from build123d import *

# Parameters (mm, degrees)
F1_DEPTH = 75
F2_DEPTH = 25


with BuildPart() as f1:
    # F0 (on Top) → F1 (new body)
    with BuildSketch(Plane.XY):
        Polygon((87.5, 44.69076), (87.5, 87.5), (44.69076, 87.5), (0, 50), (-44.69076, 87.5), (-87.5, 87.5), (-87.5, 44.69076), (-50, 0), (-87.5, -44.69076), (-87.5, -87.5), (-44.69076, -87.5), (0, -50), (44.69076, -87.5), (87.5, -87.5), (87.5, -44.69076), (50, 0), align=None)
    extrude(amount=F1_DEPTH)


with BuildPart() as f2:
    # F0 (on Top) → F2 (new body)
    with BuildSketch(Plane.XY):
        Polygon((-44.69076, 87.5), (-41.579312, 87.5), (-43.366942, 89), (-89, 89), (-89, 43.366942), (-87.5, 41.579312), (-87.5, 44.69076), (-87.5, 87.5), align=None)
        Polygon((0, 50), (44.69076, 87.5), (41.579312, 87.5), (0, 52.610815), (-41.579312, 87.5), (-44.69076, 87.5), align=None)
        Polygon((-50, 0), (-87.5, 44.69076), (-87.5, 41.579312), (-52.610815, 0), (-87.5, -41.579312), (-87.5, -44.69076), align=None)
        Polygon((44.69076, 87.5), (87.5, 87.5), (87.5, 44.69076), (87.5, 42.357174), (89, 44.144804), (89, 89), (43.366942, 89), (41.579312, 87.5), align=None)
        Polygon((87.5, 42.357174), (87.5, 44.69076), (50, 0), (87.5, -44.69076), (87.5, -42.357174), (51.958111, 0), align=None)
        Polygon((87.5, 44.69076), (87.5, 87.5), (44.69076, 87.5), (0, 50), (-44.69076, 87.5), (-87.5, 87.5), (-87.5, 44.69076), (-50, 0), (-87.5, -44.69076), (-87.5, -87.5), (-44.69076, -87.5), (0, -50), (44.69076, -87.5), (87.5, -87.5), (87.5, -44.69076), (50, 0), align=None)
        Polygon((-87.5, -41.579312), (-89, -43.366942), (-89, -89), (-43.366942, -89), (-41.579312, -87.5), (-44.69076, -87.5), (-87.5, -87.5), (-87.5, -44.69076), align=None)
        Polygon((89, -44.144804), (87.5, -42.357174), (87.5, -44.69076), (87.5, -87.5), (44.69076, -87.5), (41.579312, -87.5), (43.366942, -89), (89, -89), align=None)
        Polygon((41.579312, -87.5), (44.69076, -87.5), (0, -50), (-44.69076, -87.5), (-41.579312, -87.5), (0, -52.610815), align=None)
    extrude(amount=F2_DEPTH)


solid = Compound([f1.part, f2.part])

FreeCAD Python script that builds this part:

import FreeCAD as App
import Part
import Sketcher

V = App.Vector
Q = App.Units.Quantity

doc = App.newDocument("Part")
body = doc.addObject("PartDesign::Body", "Body")

# Sketch on XY plane
sketch1 = body.newObject("Sketcher::SketchObject", "Sketch")
sketch1.AttachmentSupport = (doc.getObject("XY_Plane"), [""])
sketch1.MapMode = "FlatFace"
sketch1.addGeometry(Part.LineSegment(V(87.5, 44.69076, 0), V(87.5, 87.5, 0)), False)
sketch1.addGeometry(Part.LineSegment(V(87.5, 87.5, 0), V(44.69076, 87.5, 0)), False)
sketch1.addGeometry(Part.LineSegment(V(44.69076, 87.5, 0), V(0, 50, 0)), False)
sketch1.addGeometry(Part.LineSegment(V(0, 50, 0), V(-44.69076, 87.5, 0)), False)
sketch1.addGeometry(Part.LineSegment(V(-44.69076, 87.5, 0), V(-87.5, 87.5, 0)), False)
sketch1.addGeometry(Part.LineSegment(V(-87.5, 87.5, 0), V(-87.5, 44.69076, 0)), False)
sketch1.addGeometry(Part.LineSegment(V(-87.5, 44.69076, 0), V(-50, 0, 0)), False)
sketch1.addGeometry(Part.LineSegment(V(-50, 0, 0), V(-87.5, -44.69076, 0)), False)
sketch1.addGeometry(Part.LineSegment(V(-87.5, -44.69076, 0), V(-87.5, -87.5, 0)), False)
sketch1.addGeometry(Part.LineSegment(V(-87.5, -87.5, 0), V(-44.69076, -87.5, 0)), False)
sketch1.addGeometry(Part.LineSegment(V(-44.69076, -87.5, 0), V(0, -50, 0)), False)
sketch1.addGeometry(Part.LineSegment(V(0, -50, 0), V(44.69076, -87.5, 0)), False)
sketch1.addGeometry(Part.LineSegment(V(44.69076, -87.5, 0), V(87.5, -87.5, 0)), False)
sketch1.addGeometry(Part.LineSegment(V(87.5, -87.5, 0), V(87.5, -44.69076, 0)), False)
sketch1.addGeometry(Part.LineSegment(V(87.5, -44.69076, 0), V(50, 0, 0)), False)
sketch1.addGeometry(Part.LineSegment(V(50, 0, 0), V(87.5, 44.69076, 0)), False)
sketch1.addConstraint(Sketcher.Constraint("Coincident", 0, 2, 1, 1))
sketch1.addConstraint(Sketcher.Constraint("Coincident", 1, 2, 2, 1))
sketch1.addConstraint(Sketcher.Constraint("Coincident", 2, 2, 3, 1))
sketch1.addConstraint(Sketcher.Constraint("Coincident", 3, 2, 4, 1))
sketch1.addConstraint(Sketcher.Constraint("Coincident", 4, 2, 5, 1))
sketch1.addConstraint(Sketcher.Constraint("Coincident", 5, 2, 6, 1))
sketch1.addConstraint(Sketcher.Constraint("Coincident", 6, 2, 7, 1))
sketch1.addConstraint(Sketcher.Constraint("Coincident", 7, 2, 8, 1))
sketch1.addConstraint(Sketcher.Constraint("Coincident", 8, 2, 9, 1))
sketch1.addConstraint(Sketcher.Constraint("Coincident", 9, 2, 10, 1))
sketch1.addConstraint(Sketcher.Constraint("Coincident", 10, 2, 11, 1))
sketch1.addConstraint(Sketcher.Constraint("Coincident", 11, 2, 12, 1))
sketch1.addConstraint(Sketcher.Constraint("Coincident", 12, 2, 13, 1))
sketch1.addConstraint(Sketcher.Constraint("Coincident", 13, 2, 14, 1))
sketch1.addConstraint(Sketcher.Constraint("Coincident", 14, 2, 15, 1))
sketch1.addConstraint(Sketcher.Constraint("Coincident", 15, 2, 0, 1))
sketch1.addConstraint(Sketcher.Constraint("Vertical", 0))
sketch1.addConstraint(Sketcher.Constraint("Horizontal", 1))
sketch1.addConstraint(Sketcher.Constraint("Horizontal", 4))
sketch1.addConstraint(Sketcher.Constraint("Vertical", 5))
sketch1.addConstraint(Sketcher.Constraint("Vertical", 8))
sketch1.addConstraint(Sketcher.Constraint("Horizontal", 9))
sketch1.addConstraint(Sketcher.Constraint("Horizontal", 12))
sketch1.addConstraint(Sketcher.Constraint("Vertical", 13))
sketch1.addConstraint(Sketcher.Constraint("Symmetric", 0, 2, 8, 2, -1, 1))
sketch1.addConstraint(Sketcher.Constraint("Symmetric", 2, 2, 10, 2, -1, 1))
sketch1.addConstraint(Sketcher.Constraint("Symmetric", 3, 2, 11, 2, -1, 1))
sketch1.addConstraint(Sketcher.Constraint("Symmetric", 5, 2, 13, 2, -1, 1))
sketch1.addConstraint(Sketcher.Constraint("Symmetric", 6, 2, 14, 2, -1, 1))
sketch1.addConstraint(Sketcher.Constraint("Symmetric", 1, 2, 3, 2, -2))
sketch1.addConstraint(Sketcher.Constraint("Symmetric", 7, 2, 13, 2, -2))
sketch1.addConstraint(Sketcher.Constraint("PointOnObject", 2, 2, -2))
sketch1.addConstraint(Sketcher.Constraint("PointOnObject", 6, 2, -1))
sketch1.addConstraint(Sketcher.Constraint("Perpendicular", 2, 6))
sketch1.addConstraint(Sketcher.Constraint("Perpendicular", 6, 10))
sketch1.addConstraint(Sketcher.Constraint("Perpendicular", 11, 15))
sketch1.addConstraint(Sketcher.Constraint("Equal", 12, 0))
sketch1.addConstraint(Sketcher.Constraint("Equal", 3, 6))
sketch1.addConstraint(Sketcher.Constraint("Angle", 2, Q("-140 deg")))
sketch1.addConstraint(Sketcher.Constraint("DistanceY", -1, 1, 2, 2, 50.0))
sketch1.addConstraint(Sketcher.Constraint("DistanceX", 4, 2, 0, 2, 175.0))
pad1 = body.newObject("PartDesign::Pad", "Pad")
pad1.Profile = sketch1
pad1.Length = 75
body2 = doc.addObject("PartDesign::Body", "Body001")

# Sketch on XY plane
sketch2 = body2.newObject("Sketcher::SketchObject", "Sketch001")
sketch2.AttachmentSupport = (doc.getObject("XY_Plane001"), [""])
sketch2.MapMode = "FlatFace"
sketch2.addGeometry(Part.LineSegment(V(-41.579312, 87.5, 0), V(-43.366942, 89, 0)), False)
sketch2.addGeometry(Part.LineSegment(V(-43.366942, 89, 0), V(-89, 89, 0)), False)
sketch2.addGeometry(Part.LineSegment(V(-89, 89, 0), V(-89, 43.366942, 0)), False)
sketch2.addGeometry(Part.LineSegment(V(-89, 43.366942, 0), V(-87.5, 41.579312, 0)), False)
sketch2.addGeometry(Part.LineSegment(V(-87.5, 41.579312, 0), V(-52.610815, 0, 0)), False)
sketch2.addGeometry(Part.LineSegment(V(-52.610815, 0, 0), V(-87.5, -41.579312, 0)), False)
sketch2.addGeometry(Part.LineSegment(V(-87.5, -41.579312, 0), V(-89, -43.366942, 0)), False)
sketch2.addGeometry(Part.LineSegment(V(-89, -43.366942, 0), V(-89, -89, 0)), False)
sketch2.addGeometry(Part.LineSegment(V(-89, -89, 0), V(-43.366942, -89, 0)), False)
sketch2.addGeometry(Part.LineSegment(V(-43.366942, -89, 0), V(-41.579312, -87.5, 0)), False)
sketch2.addGeometry(Part.LineSegment(V(-41.579312, -87.5, 0), V(0, -52.610815, 0)), False)
sketch2.addGeometry(Part.LineSegment(V(0, -52.610815, 0), V(41.579312, -87.5, 0)), False)
sketch2.addGeometry(Part.LineSegment(V(41.579312, -87.5, 0), V(43.366942, -89, 0)), False)
sketch2.addGeometry(Part.LineSegment(V(43.366942, -89, 0), V(89, -89, 0)), False)
sketch2.addGeometry(Part.LineSegment(V(89, -89, 0), V(89, -44.144804, 0)), False)
sketch2.addGeometry(Part.LineSegment(V(89, -44.144804, 0), V(87.5, -42.357174, 0)), False)
sketch2.addGeometry(Part.LineSegment(V(87.5, -42.357174, 0), V(51.958111, 0, 0)), False)
sketch2.addGeometry(Part.LineSegment(V(51.958111, 0, 0), V(87.5, 42.357174, 0)), False)
sketch2.addGeometry(Part.LineSegment(V(87.5, 42.357174, 0), V(89, 44.144804, 0)), False)
sketch2.addGeometry(Part.LineSegment(V(89, 44.144804, 0), V(89, 89, 0)), False)
sketch2.addGeometry(Part.LineSegment(V(89, 89, 0), V(43.366942, 89, 0)), False)
sketch2.addGeometry(Part.LineSegment(V(43.366942, 89, 0), V(41.579312, 87.5, 0)), False)
sketch2.addGeometry(Part.LineSegment(V(41.579312, 87.5, 0), V(0, 52.610815, 0)), False)
sketch2.addGeometry(Part.LineSegment(V(0, 52.610815, 0), V(-41.579312, 87.5, 0)), False)
sketch2.addConstraint(Sketcher.Constraint("Coincident", 0, 2, 1, 1))
sketch2.addConstraint(Sketcher.Constraint("Coincident", 1, 2, 2, 1))
sketch2.addConstraint(Sketcher.Constraint("Coincident", 2, 2, 3, 1))
sketch2.addConstraint(Sketcher.Constraint("Coincident", 3, 2, 4, 1))
sketch2.addConstraint(Sketcher.Constraint("Coincident", 4, 2, 5, 1))
sketch2.addConstraint(Sketcher.Constraint("Coincident", 5, 2, 6, 1))
sketch2.addConstraint(Sketcher.Constraint("Coincident", 6, 2, 7, 1))
sketch2.addConstraint(Sketcher.Constraint("Coincident", 7, 2, 8, 1))
sketch2.addConstraint(Sketcher.Constraint("Coincident", 8, 2, 9, 1))
sketch2.addConstraint(Sketcher.Constraint("Coincident", 9, 2, 10, 1))
sketch2.addConstraint(Sketcher.Constraint("Coincident", 10, 2, 11, 1))
sketch2.addConstraint(Sketcher.Constraint("Coincident", 11, 2, 12, 1))
sketch2.addConstraint(Sketcher.Constraint("Coincident", 12, 2, 13, 1))
sketch2.addConstraint(Sketcher.Constraint("Coincident", 13, 2, 14, 1))
sketch2.addConstraint(Sketcher.Constraint("Coincident", 14, 2, 15, 1))
sketch2.addConstraint(Sketcher.Constraint("Coincident", 15, 2, 16, 1))
sketch2.addConstraint(Sketcher.Constraint("Coincident", 16, 2, 17, 1))
sketch2.addConstraint(Sketcher.Constraint("Coincident", 17, 2, 18, 1))
sketch2.addConstraint(Sketcher.Constraint("Coincident", 18, 2, 19, 1))
sketch2.addConstraint(Sketcher.Constraint("Coincident", 19, 2, 20, 1))
sketch2.addConstraint(Sketcher.Constraint("Coincident", 20, 2, 21, 1))
sketch2.addConstraint(Sketcher.Constraint("Coincident", 21, 2, 22, 1))
sketch2.addConstraint(Sketcher.Constraint("Coincident", 22, 2, 23, 1))
sketch2.addConstraint(Sketcher.Constraint("Coincident", 23, 2, 0, 1))
sketch2.addConstraint(Sketcher.Constraint("Horizontal", 1))
sketch2.addConstraint(Sketcher.Constraint("Vertical", 2))
sketch2.addConstraint(Sketcher.Constraint("Vertical", 7))
sketch2.addConstraint(Sketcher.Constraint("Horizontal", 8))
sketch2.addConstraint(Sketcher.Constraint("Horizontal", 13))
sketch2.addConstraint(Sketcher.Constraint("Vertical", 14))
sketch2.addConstraint(Sketcher.Constraint("Vertical", 19))
sketch2.addConstraint(Sketcher.Constraint("Horizontal", 20))
sketch2.addConstraint(Sketcher.Constraint("Symmetric", 0, 2, 12, 2, -1, 1))
sketch2.addConstraint(Sketcher.Constraint("Symmetric", 7, 2, 19, 2, -1, 1))
sketch2.addConstraint(Sketcher.Constraint("Symmetric", 9, 2, 21, 2, -1, 1))
sketch2.addConstraint(Sketcher.Constraint("Symmetric", 10, 2, 22, 2, -1, 1))
sketch2.addConstraint(Sketcher.Constraint("Symmetric", 11, 2, 23, 2, -1, 1))
sketch2.addConstraint(Sketcher.Constraint("Symmetric", 9, 2, 11, 2, -2))
sketch2.addConstraint(Sketcher.Constraint("Symmetric", 8, 2, 12, 2, -2))
sketch2.addConstraint(Sketcher.Constraint("Symmetric", 3, 2, 5, 2, -1))
sketch2.addConstraint(Sketcher.Constraint("Symmetric", 2, 2, 6, 2, -1))
sketch2.addConstraint(Sketcher.Constraint("Symmetric", 15, 2, 17, 2, -1))
sketch2.addConstraint(Sketcher.Constraint("Symmetric", 14, 2, 18, 2, -1))
sketch2.addConstraint(Sketcher.Constraint("PointOnObject", 4, 2, -1))
sketch2.addConstraint(Sketcher.Constraint("PointOnObject", 10, 2, -2))
sketch2.addConstraint(Sketcher.Constraint("PointOnObject", 16, 2, -1))
sketch2.addConstraint(Sketcher.Constraint("Parallel", 3, 4))
sketch2.addConstraint(Sketcher.Constraint("Perpendicular", 0, 5))
sketch2.addConstraint(Sketcher.Constraint("Parallel", 9, 10))
sketch2.addConstraint(Sketcher.Constraint("Perpendicular", 10, 15))
sketch2.addConstraint(Sketcher.Constraint("Parallel", 15, 16))
sketch2.addConstraint(Sketcher.Constraint("Perpendicular", 16, 21))
sketch2.addConstraint(Sketcher.Constraint("Equal", 20, 2))
sketch2.addConstraint(Sketcher.Constraint("Equal", 0, 3))
sketch2.addConstraint(Sketcher.Constraint("Equal", 5, 10))
sketch2.addConstraint(Sketcher.Constraint("Equal", 12, 15))
sketch2.addConstraint(Sketcher.Constraint("Angle", 0, Q("139.999994 deg")))
sketch2.addConstraint(Sketcher.Constraint("DistanceY", -1, 1, 0, 2, 89.0))
sketch2.addConstraint(Sketcher.Constraint("DistanceX", 3, 2, -1, 1, 87.5))
sketch2.addConstraint(Sketcher.Constraint("DistanceX", 11, 2, 16, 2, 10.378799))
sketch2.addConstraint(Sketcher.Constraint("DistanceX", 1, 2, 1, 1, 45.633058))
pad2 = body2.newObject("PartDesign::Pad", "Pad001")
pad2.Profile = sketch2
pad2.Length = 25

doc.recompute()
